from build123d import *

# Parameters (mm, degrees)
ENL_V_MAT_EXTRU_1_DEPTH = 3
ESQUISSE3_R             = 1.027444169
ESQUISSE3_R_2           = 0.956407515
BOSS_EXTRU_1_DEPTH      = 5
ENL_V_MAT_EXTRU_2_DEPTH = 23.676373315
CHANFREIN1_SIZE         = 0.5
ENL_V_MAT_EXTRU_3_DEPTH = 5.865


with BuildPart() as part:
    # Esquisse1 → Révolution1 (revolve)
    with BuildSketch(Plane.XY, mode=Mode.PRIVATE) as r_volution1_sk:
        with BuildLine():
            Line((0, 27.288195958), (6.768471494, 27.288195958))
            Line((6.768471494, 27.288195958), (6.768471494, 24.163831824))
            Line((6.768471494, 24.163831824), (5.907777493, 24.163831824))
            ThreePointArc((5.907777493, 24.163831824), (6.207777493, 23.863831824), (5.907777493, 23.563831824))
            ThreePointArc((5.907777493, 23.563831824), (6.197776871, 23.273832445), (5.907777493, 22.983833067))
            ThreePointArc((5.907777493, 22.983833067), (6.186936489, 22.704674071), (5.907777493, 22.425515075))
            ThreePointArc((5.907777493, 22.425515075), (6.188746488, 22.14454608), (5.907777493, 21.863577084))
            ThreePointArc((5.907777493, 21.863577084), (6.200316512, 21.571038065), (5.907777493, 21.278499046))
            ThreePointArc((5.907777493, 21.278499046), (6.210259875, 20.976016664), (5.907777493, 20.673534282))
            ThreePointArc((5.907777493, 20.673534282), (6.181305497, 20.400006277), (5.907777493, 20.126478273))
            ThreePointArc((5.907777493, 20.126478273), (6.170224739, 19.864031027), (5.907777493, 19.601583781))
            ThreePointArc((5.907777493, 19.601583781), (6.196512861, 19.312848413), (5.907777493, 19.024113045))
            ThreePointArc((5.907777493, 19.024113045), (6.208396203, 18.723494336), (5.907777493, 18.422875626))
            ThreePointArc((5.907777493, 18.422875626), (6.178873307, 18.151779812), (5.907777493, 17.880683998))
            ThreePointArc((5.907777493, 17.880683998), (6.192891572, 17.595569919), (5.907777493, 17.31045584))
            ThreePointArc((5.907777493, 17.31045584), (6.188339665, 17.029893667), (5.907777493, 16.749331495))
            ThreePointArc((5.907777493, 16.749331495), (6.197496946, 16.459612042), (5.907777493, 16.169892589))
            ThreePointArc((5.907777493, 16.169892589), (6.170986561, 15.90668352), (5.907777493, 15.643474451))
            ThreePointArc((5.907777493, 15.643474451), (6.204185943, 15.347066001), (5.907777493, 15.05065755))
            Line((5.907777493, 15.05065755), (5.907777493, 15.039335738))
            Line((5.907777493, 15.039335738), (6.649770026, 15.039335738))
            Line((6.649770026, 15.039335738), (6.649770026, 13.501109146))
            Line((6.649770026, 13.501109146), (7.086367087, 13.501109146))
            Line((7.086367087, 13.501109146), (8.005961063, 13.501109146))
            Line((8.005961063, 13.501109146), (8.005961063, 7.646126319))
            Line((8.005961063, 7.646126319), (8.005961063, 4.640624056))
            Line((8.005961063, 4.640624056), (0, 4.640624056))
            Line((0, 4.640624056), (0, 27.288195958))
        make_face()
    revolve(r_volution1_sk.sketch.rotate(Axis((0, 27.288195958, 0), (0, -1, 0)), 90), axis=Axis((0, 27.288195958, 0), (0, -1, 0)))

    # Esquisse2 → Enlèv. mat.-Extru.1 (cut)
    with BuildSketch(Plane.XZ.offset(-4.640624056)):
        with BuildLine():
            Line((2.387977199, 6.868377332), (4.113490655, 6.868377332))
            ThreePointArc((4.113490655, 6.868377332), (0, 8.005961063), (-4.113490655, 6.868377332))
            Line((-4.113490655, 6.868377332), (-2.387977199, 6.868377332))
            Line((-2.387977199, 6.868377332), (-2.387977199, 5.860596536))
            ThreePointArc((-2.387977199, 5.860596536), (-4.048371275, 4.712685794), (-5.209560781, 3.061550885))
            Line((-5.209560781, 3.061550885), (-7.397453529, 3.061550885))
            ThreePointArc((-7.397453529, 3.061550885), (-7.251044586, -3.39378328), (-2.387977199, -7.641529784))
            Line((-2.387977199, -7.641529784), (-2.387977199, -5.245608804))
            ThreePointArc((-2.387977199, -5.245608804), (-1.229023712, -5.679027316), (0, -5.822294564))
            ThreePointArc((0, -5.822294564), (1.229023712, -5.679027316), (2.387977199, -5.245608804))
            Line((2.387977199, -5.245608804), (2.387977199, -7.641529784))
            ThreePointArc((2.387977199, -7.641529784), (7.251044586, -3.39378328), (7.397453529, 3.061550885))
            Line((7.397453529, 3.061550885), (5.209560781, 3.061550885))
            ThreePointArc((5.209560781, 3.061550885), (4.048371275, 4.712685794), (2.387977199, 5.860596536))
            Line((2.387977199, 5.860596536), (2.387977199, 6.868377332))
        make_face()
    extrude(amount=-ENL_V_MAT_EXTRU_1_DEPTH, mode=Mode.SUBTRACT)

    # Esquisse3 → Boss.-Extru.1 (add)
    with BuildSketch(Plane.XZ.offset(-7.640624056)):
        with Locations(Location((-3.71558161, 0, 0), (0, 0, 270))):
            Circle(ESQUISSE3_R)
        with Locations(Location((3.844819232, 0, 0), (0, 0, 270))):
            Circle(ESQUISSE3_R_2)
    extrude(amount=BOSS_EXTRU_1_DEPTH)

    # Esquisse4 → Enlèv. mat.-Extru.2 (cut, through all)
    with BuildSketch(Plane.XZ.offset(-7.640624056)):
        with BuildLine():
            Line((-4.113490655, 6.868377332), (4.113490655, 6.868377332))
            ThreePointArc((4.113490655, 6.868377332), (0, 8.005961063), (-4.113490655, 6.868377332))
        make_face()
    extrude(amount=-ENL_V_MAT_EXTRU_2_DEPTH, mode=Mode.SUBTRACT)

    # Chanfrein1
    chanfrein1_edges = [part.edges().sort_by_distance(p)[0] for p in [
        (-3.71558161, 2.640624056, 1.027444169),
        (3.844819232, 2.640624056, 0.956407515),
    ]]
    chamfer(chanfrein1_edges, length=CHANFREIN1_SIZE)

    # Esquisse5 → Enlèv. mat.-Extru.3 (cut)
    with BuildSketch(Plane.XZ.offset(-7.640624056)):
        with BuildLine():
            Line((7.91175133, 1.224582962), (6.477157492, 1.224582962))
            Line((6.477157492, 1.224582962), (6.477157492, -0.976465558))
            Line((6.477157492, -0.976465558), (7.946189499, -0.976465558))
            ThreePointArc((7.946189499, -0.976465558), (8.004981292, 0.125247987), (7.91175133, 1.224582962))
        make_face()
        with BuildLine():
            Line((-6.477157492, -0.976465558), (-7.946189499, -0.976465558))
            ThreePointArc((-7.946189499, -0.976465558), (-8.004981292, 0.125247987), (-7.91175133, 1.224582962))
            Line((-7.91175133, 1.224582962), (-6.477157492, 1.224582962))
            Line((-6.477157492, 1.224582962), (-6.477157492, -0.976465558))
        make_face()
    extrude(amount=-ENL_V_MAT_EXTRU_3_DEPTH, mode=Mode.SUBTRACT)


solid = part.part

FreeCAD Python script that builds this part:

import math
import FreeCAD as App
import Part
import Sketcher
from FreeCAD import Vector


def edges_at(feature, points):
    """Names of the edges that pass closest to the given points."""
    edges = feature.Shape.Edges
    near = lambda p: min(range(len(edges)), key=lambda i: edges[i].distToShape(Part.Vertex(*p))[0])
    return sorted({f"Edge{near(p) + 1}" for p in points})

doc = App.newDocument("Part")
params = doc.addObject("Spreadsheet::Sheet", "Params")
for row, (alias, value) in enumerate([
    ("sketch1_radius", "0.3 mm"),
    ("sketch1_radius2", "0.289999 mm"),
    ("revolution_angle", "360 deg"),
    ("pocket1_length", "3 mm"),
    ("pad1_length", "5 mm"),
    ("chamfer_size", "0.5 mm"),
    ("pocket3_length", "5.865 mm"),
], start=1):
    params.set(f"A{row}", alias)
    params.set(f"B{row}", "=" + value)
    params.setAlias(f"B{row}", alias)

body = doc.addObject("PartDesign::Body", "Body")

# Sketch on XY plane
sketch1 = doc.addObject("Sketcher::SketchObject", "Sketch")
body.addObject(sketch1)
sketch1.AttachmentSupport = (doc.XY_Plane, [""])
sketch1.MapMode = "FlatFace"
sketch1.addGeometry(Part.LineSegment(Vector(6.768, 27.288, 0), Vector(0, 27.288, 0)), False)
sketch1.addGeometry(Part.LineSegment(Vector(0, 27.288, 0), Vector(0, 4.641, 0)), False)
sketch1.addGeometry(Part.LineSegment(Vector(0, 4.641, 0), Vector(8.006, 4.641, 0)), False)
sketch1.addGeometry(Part.LineSegment(Vector(8.006, 4.641, 0), Vector(8.006, 13.501, 0)), False)
sketch1.addGeometry(Part.LineSegment(Vector(8.006, 13.501, 0), Vector(6.65, 13.501, 0)), False)
sketch1.addGeometry(Part.LineSegment(Vector(6.65, 13.501, 0), Vector(6.65, 15.039, 0)), False)
sketch1.addGeometry(Part.LineSegment(Vector(6.65, 15.039, 0), Vector(5.908, 15.039, 0)), False)
sketch1.addGeometry(Part.LineSegment(Vector(5.908, 15.039, 0), Vector(5.908, 15.051, 0)), False)
sketch1.addGeometry(Part.ArcOfCircle(Part.Circle(Vector(5.908, 15.347, 0), Vector(0, 0, 1), 0.296), math.radians(-90), math.radians(90)), False)
sketch1.addGeometry(Part.ArcOfCircle(Part.Circle(Vector(5.908, 15.907, 0), Vector(0, 0, 1), 0.263), math.radians(-90), math.radians(90)), False)
sketch1.addGeometry(Part.ArcOfCircle(Part.Circle(Vector(5.908, 16.46, 0), Vector(0, 0, 1), 0.29), math.radians(-90), math.radians(90)), False)
sketch1.addGeometry(Part.ArcOfCircle(Part.Circle(Vector(5.908, 17.03, 0), Vector(0, 0, 1), 0.281), math.radians(-90), math.radians(90)), False)
sketch1.addGeometry(Part.ArcOfCircle(Part.Circle(Vector(5.908, 17.596, 0), Vector(0, 0, 1), 0.285), math.radians(-90), math.radians(90)), False)
sketch1.addGeometry(Part.ArcOfCircle(Part.Circle(Vector(5.908, 18.152, 0), Vector(0, 0, 1), 0.271), math.radians(-90), math.radians(90)), False)
sketch1.addGeometry(Part.ArcOfCircle(Part.Circle(Vector(5.908, 18.723, 0), Vector(0, 0, 1), 0.301), math.radians(-90), math.radians(90)), False)
sketch1.addGeometry(Part.ArcOfCircle(Part.Circle(Vector(5.908, 19.313, 0), Vector(0, 0, 1), 0.289), math.radians(-90), math.radians(90)), False)
sketch1.addGeometry(Part.ArcOfCircle(Part.Circle(Vector(5.908, 19.864, 0), Vector(0, 0, 1), 0.262), math.radians(-90), math.radians(90)), False)
sketch1.addGeometry(Part.ArcOfCircle(Part.Circle(Vector(5.908, 20.4, 0), Vector(0, 0, 1), 0.274), math.radians(-90), math.radians(90)), False)
sketch1.addGeometry(Part.ArcOfCircle(Part.Circle(Vector(5.908, 20.976, 0), Vector(0, 0, 1), 0.302), math.radians(-90), math.radians(90)), False)
sketch1.addGeometry(Part.ArcOfCircle(Part.Circle(Vector(5.908, 21.571, 0), Vector(0, 0, 1), 0.293), math.radians(-90), math.radians(90)), False)
sketch1.addGeometry(Part.ArcOfCircle(Part.Circle(Vector(5.908, 22.145, 0), Vector(0, 0, 1), 0.281), math.radians(-90), math.radians(90)), False)
sketch1.addGeometry(Part.ArcOfCircle(Part.Circle(Vector(5.908, 22.705, 0), Vector(0, 0, 1), 0.279), math.radians(-90), math.radians(90)), False)
sketch1.addGeometry(Part.ArcOfCircle(Part.Circle(Vector(5.908, 23.274, 0), Vector(0, 0, 1), 0.29), math.radians(-90), math.radians(90)), False)
sketch1.addGeometry(Part.ArcOfCircle(Part.Circle(Vector(5.908, 23.864, 0), Vector(0, 0, 1), 0.3), math.radians(-90), math.radians(90)), False)
sketch1.addGeometry(Part.LineSegment(Vector(5.908, 24.164, 0), Vector(6.768, 24.164, 0)), False)
sketch1.addGeometry(Part.LineSegment(Vector(6.768, 24.164, 0), Vector(6.768, 27.288, 0)), False)
sketch1.addConstraint(Sketcher.Constraint("Coincident", 0, 2, 1, 1))
sketch1.addConstraint(Sketcher.Constraint("Coincident", 1, 2, 2, 1))
sketch1.addConstraint(Sketcher.Constraint("Coincident", 2, 2, 3, 1))
sketch1.addConstraint(Sketcher.Constraint("Coincident", 3, 2, 4, 1))
sketch1.addConstraint(Sketcher.Constraint("Coincident", 4, 2, 5, 1))
sketch1.addConstraint(Sketcher.Constraint("Coincident", 5, 2, 6, 1))
sketch1.addConstraint(Sketcher.Constraint("Coincident", 6, 2, 7, 1))
sketch1.addConstraint(Sketcher.Constraint("Coincident", 7, 2, 8, 1))
sketch1.addConstraint(Sketcher.Constraint("Tangent", 8, 2, 9, 1))
sketch1.addConstraint(Sketcher.Constraint("Tangent", 9, 2, 10, 1))
sketch1.addConstraint(Sketcher.Constraint("Tangent", 10, 2, 11, 1))
sketch1.addConstraint(Sketcher.Constraint("Tangent", 11, 2, 12, 1))
sketch1.addConstraint(Sketcher.Constraint("Tangent", 12, 2, 13, 1))
sketch1.addConstraint(Sketcher.Constraint("Tangent", 13, 2, 14, 1))
sketch1.addConstraint(Sketcher.Constraint("Tangent", 14, 2, 15, 1))
sketch1.addConstraint(Sketcher.Constraint("Tangent", 15, 2, 16, 1))
sketch1.addConstraint(Sketcher.Constraint("Tangent", 16, 2, 17, 1))
sketch1.addConstraint(Sketcher.Constraint("Tangent", 17, 2, 18, 1))
sketch1.addConstraint(Sketcher.Constraint("Tangent", 18, 2, 19, 1))
sketch1.addConstraint(Sketcher.Constraint("Tangent", 19, 2, 20, 1))
sketch1.addConstraint(Sketcher.Constraint("Tangent", 20, 2, 21, 1))
sketch1.addConstraint(Sketcher.Constraint("Tangent", 21, 2, 22, 1))
sketch1.addConstraint(Sketcher.Constraint("Tangent", 22, 2, 23, 1))
sketch1.addConstraint(Sketcher.Constraint("Tangent", 23, 2, 24, 1))
sketch1.addConstraint(Sketcher.Constraint("Coincident", 24, 2, 25, 1))
sketch1.addConstraint(Sketcher.Constraint("Coincident", 25, 2, 0, 1))
sketch1.addConstraint(Sketcher.Constraint("Horizontal", 0))
sketch1.addConstraint(Sketcher.Constraint("Vertical", 1))
sketch1.addConstraint(Sketcher.Constraint("Horizontal", 2))
sketch1.addConstraint(Sketcher.Constraint("Vertical", 3))
sketch1.addConstraint(Sketcher.Constraint("Horizontal", 4))
sketch1.addConstraint(Sketcher.Constraint("Vertical", 5))
sketch1.addConstraint(Sketcher.Constraint("Horizontal", 6))
sketch1.addConstraint(Sketcher.Constraint("Vertical", 7))
sketch1.addConstraint(Sketcher.Constraint("Horizontal", 24))
sketch1.addConstraint(Sketcher.Constraint("Vertical", 25))
sketch1.addConstraint(Sketcher.Constraint("PointOnObject", 0, 2, -2))
sketch1.addConstraint(Sketcher.Constraint("Vertical", 8, 3, 9, 3))
sketch1.addConstraint(Sketcher.Constraint("Vertical", 9, 3, 10, 3))
sketch1.addConstraint(Sketcher.Constraint("Vertical", 10, 3, 11, 3))
sketch1.addConstraint(Sketcher.Constraint("Vertical", 11, 3, 12, 3))
sketch1.addConstraint(Sketcher.Constraint("Vertical", 12, 3, 13, 3))
sketch1.addConstraint(Sketcher.Constraint("Vertical", 13, 3, 14, 3))
sketch1.addConstraint(Sketcher.Constraint("Vertical", 14, 3, 15, 3))
sketch1.addConstraint(Sketcher.Constraint("Vertical", 15, 3, 16, 3))
sketch1.addConstraint(Sketcher.Constraint("Vertical", 16, 3, 17, 3))
sketch1.addConstraint(Sketcher.Constraint("Vertical", 17, 3, 18, 3))
sketch1.addConstraint(Sketcher.Constraint("Vertical", 18, 3, 19, 3))
sketch1.addConstraint(Sketcher.Constraint("Vertical", 19, 3, 20, 3))
sketch1.addConstraint(Sketcher.Constraint("Vertical", 20, 3, 21, 3))
sketch1.addConstraint(Sketcher.Constraint("Vertical", 21, 3, 22, 3))
sketch1.addConstraint(Sketcher.Constraint("Vertical", 22, 3, 23, 3))
sketch1.addConstraint(Sketcher.Constraint("Vertical", 23, 3, 6, 2))
sketch1.addConstraint(Sketcher.Constraint("Radius", 23, 0.3))
sketch1.addConstraint(Sketcher.Constraint("Radius", 22, 0.289999))
sketch1.addConstraint(Sketcher.Constraint("Radius", 8, 0.296408))
sketch1.addConstraint(Sketcher.Constraint("Radius", 9, 0.263209))
sketch1.addConstraint(Sketcher.Constraint("Radius", 10, 0.289719))
sketch1.addConstraint(Sketcher.Constraint("Radius", 14, 0.300619))
sketch1.addConstraint(Sketcher.Constraint("Radius", 17, 0.273528))
sketch1.addConstraint(Sketcher.Constraint("Radius", 19, 0.292539))
sketch1.addConstraint(Sketcher.Constraint("Radius", 20, 0.280969))
sketch1.addConstraint(Sketcher.Constraint("Radius", 21, 0.279159))
sketch1.addConstraint(Sketcher.Constraint("DistanceY", 9, 2, 11, 3, 0.860001))
sketch1.addConstraint(Sketcher.Constraint("Radius", 12, 0.285114))
sketch1.addConstraint(Sketcher.Constraint("Radius", 13, 0.271096))
sketch1.addConstraint(Sketcher.Constraint("Radius", 15, 0.288735))
sketch1.addConstraint(Sketcher.Constraint("Radius", 16, 0.262447))
sketch1.addConstraint(Sketcher.Constraint("Radius", 18, 0.302482))
sketch1.addConstraint(Sketcher.Constraint("DistanceX", 0, 2, 0, 1, 6.768471))
sketch1.addConstraint(Sketcher.Constraint("DistanceX", 2, 1, 2, 2, 8.005961))
sketch1.addConstraint(Sketcher.Constraint("DistanceX", 4, 2, 4, 1, 1.356191))
sketch1.addConstraint(Sketcher.Constraint("DistanceY", 1, 2, 1, 1, 22.647572))
sketch1.addConstraint(Sketcher.Constraint("DistanceY", 7, 1, 7, 2, 0.011322))
sketch1.addConstraint(Sketcher.Constraint("DistanceY", -1, 1, 18, 2, 21.278499))
sketch1.addConstraint(Sketcher.Constraint("DistanceX", 6, 2, 6, 1, 0.741993))
sketch1.addConstraint(Sketcher.Constraint("DistanceY", 3, 1, 3, 2, 8.860485))
sketch1.addConstraint(Sketcher.Constraint("DistanceY", 5, 1, 5, 2, 1.538227))
sketch1.setExpression("Constraints[53]", "Params.sketch1_radius")
sketch1.setExpression("Constraints[54]", "Params.sketch1_radius2")
revolution = doc.addObject("PartDesign::Revolution", "Revolution")
body.addObject(revolution)
revolution.Profile = sketch1
revolution.ReferenceAxis = (sketch1, ["V_Axis"])
revolution.setExpression("Angle", "Params.revolution_angle")

# Sketch on XZ plane
sketch2 = doc.addObject("Sketcher::SketchObject", "Sketch001")
body.addObject(sketch2)
sketch2.AttachmentSupport = (doc.XZ_Plane, [""])
sketch2.MapMode = "FlatFace"
sketch2.AttachmentOffset = App.Placement(Vector(0, 0, -4.640624), App.Rotation())
sketch2.addGeometry(Part.LineSegment(Vector(2.387977, 6.868377, 0), Vector(4.113491, 6.868377, 0)), False)
sketch2.addGeometry(Part.ArcOfCircle(Part.Circle(Vector(0, 0, 0), Vector(0, 0, 1), 8.005961), math.radians(59.082489), math.radians(120.917511)), False)
sketch2.addGeometry(Part.LineSegment(Vector(-4.113491, 6.868377, 0), Vector(-2.387977, 6.868377, 0)), False)
sketch2.addGeometry(Part.LineSegment(Vector(-2.387977, 6.868377, 0), Vector(-2.387977, 5.860597, 0)), False)
sketch2.addGeometry(Part.ArcOfCircle(Part.Circle(Vector(0, 0.631717, 0), Vector(0, 0, 1), 5.748358), math.radians(114.545708), math.radians(154.994799)), False)
sketch2.addGeometry(Part.LineSegment(Vector(-5.209561, 3.061551, 0), Vector(-7.397454, 3.061551, 0)), False)
sketch2.addGeometry(Part.ArcOfCircle(Part.Circle(Vector(0, 0, 0), Vector(0, 0, 1), 8.005961), math.radians(157.517024), math.radians(252.645981)), False)
sketch2.addGeometry(Part.LineSegment(Vector(-2.387977, -7.64153, 0), Vector(-2.387977, -5.245609, 0)), False)
sketch2.addGeometry(Part.ArcOfCircle(Part.Circle(Vector(-0.024959, -0.69316, 0), Vector(0, 0, 1), 5.129195), math.radians(-117.432258), math.radians(-89.721192)), False)
sketch2.addGeometry(Part.ArcOfCircle(Part.Circle(Vector(0.024959, -0.69316, 0), Vector(0, 0, 1), 5.129195), math.radians(-90.278808), math.radians(-62.567742)), False)
sketch2.addGeometry(Part.LineSegment(Vector(2.387977, -5.245609, 0), Vector(2.387977, -7.64153, 0)), False)
sketch2.addGeometry(Part.ArcOfCircle(Part.Circle(Vector(0, 0, 0), Vector(0, 0, 1), 8.005961), math.radians(-72.645981), math.radians(22.482976)), False)
sketch2.addGeometry(Part.LineSegment(Vector(7.397454, 3.061551, 0), Vector(5.209561, 3.061551, 0)), False)
sketch2.addGeometry(Part.ArcOfCircle(Part.Circle(Vector(0, 0.631717, 0), Vector(0, 0, 1), 5.748358), math.radians(25.005201), math.radians(65.454292)), False)
sketch2.addGeometry(Part.LineSegment(Vector(2.387977, 5.860597, 0), Vector(2.387977, 6.868377, 0)), False)
sketch2.addConstraint(Sketcher.Constraint("Coincident", 0, 2, 1, 1))
sketch2.addConstraint(Sketcher.Constraint("Coincident", 1, 2, 2, 1))
sketch2.addConstraint(Sketcher.Constraint("Coincident", 2, 2, 3, 1))
sketch2.addConstraint(Sketcher.Constraint("Coincident", 3, 2, 4, 1))
sketch2.addConstraint(Sketcher.Constraint("Coincident", 4, 2, 5, 1))
sketch2.addConstraint(Sketcher.Constraint("Coincident", 5, 2, 6, 1))
sketch2.addConstraint(Sketcher.Constraint("Coincident", 6, 2, 7, 1))
sketch2.addConstraint(Sketcher.Constraint("Coincident", 7, 2, 8, 1))
sketch2.addConstraint(Sketcher.Constraint("Coincident", 8, 2, 9, 1))
sketch2.addConstraint(Sketcher.Constraint("Coincident", 9, 2, 10, 1))
sketch2.addConstraint(Sketcher.Constraint("Coincident", 10, 2, 11, 1))
sketch2.addConstraint(Sketcher.Constraint("Coincident", 11, 2, 12, 1))
sketch2.addConstraint(Sketcher.Constraint("Coincident", 12, 2, 13, 1))
sketch2.addConstraint(Sketcher.Constraint("Coincident", 13, 2, 14, 1))
sketch2.addConstraint(Sketcher.Constraint("Coincident", 14, 2, 0, 1))
sketch2.addConstraint(Sketcher.Constraint("Horizontal", 0))
sketch2.addConstraint(Sketcher.Constraint("Horizontal", 2))
sketch2.addConstraint(Sketcher.Constraint("Vertical", 3))
sketch2.addConstraint(Sketcher.Constraint("Horizontal", 5))
sketch2.addConstraint(Sketcher.Constraint("Vertical", 7))
sketch2.addConstraint(Sketcher.Constraint("Vertical", 10))
sketch2.addConstraint(Sketcher.Constraint("Horizontal", 12))
sketch2.addConstraint(Sketcher.Constraint("Vertical", 14))
sketch2.addConstraint(Sketcher.Constraint("Coincident", 1, 3, -1, 1))
sketch2.addConstraint(Sketcher.Constraint("Coincident", 6, 3, -1, 1))
sketch2.addConstraint(Sketcher.Constraint("Coincident", 11, 3, -1, 1))
sketch2.addConstraint(Sketcher.Constraint("Coincident", 13, 3, 4, 3))
sketch2.addConstraint(Sketcher.Constraint("Equal", 1, 6))
sketch2.addConstraint(Sketcher.Constraint("Equal", 8, 9))
sketch2.addConstraint(Sketcher.Constraint("Equal", 6, 11))
sketch2.addConstraint(Sketcher.Constraint("Equal", 4, 13))
sketch2.addConstraint(Sketcher.Constraint("Symmetric", 8, 3, 9, 3, -2))
sketch2.addConstraint(Sketcher.Constraint("Symmetric", 4, 2, 12, 2, -2))
sketch2.addConstraint(Sketcher.Constraint("Symmetric", 2, 2, 14, 2, -2))
sketch2.addConstraint(Sketcher.Constraint("Horizontal", 7, 2, 9, 2))
sketch2.addConstraint(Sketcher.Constraint("Vertical", 3, 2, 6, 2))
sketch2.addConstraint(Sketcher.Constraint("Radius", 1, 8.005961))
sketch2.addConstraint(Sketcher.Constraint("Radius", 4, 5.748358))
sketch2.addConstraint(Sketcher.Constraint("Radius", 8, 5.129195))
sketch2.addConstraint(Sketcher.Constraint("DistanceY", 3, 2, 3, 1, 1.007781))
sketch2.addConstraint(Sketcher.Constraint("DistanceY", 7, 1, 7, 2, 2.395921))
sketch2.addConstraint(Sketcher.Constraint("DistanceX", 0, 1, 0, 2, 1.725513))
sketch2.addConstraint(Sketcher.Constraint("DistanceX", 5, 2, 5, 1, 2.187893))
sketch2.addConstraint(Sketcher.Constraint("DistanceX", 8, 3, -1, 1, 0.024959))
sketch2.addConstraint(Sketcher.Constraint("DistanceY", 8, 3, -1, 1, 0.69316))
pocket1 = doc.addObject("PartDesign::Pocket", "Pocket")
body.addObject(pocket1)
pocket1.Profile = sketch2
pocket1.setExpression("Length", "Params.pocket1_length")

# Sketch on XZ plane
sketch3 = doc.addObject("Sketcher::SketchObject", "Sketch002")
body.addObject(sketch3)
sketch3.AttachmentSupport = (doc.XZ_Plane, [""])
sketch3.MapMode = "FlatFace"
sketch3.AttachmentOffset = App.Placement(Vector(0, 0, -7.640624), App.Rotation())
sketch3.addGeometry(Part.Circle(Vector(-3.7, 0, 0), Vector(0, 0, 1), 1), False)
sketch3.addGeometry(Part.Circle(Vector(3.8, 0, 0), Vector(0, 0, 1), 1), False)
sketch3.addConstraint(Sketcher.Constraint("PointOnObject", 0, 3, -1))
sketch3.addConstraint(Sketcher.Constraint("PointOnObject", 1, 3, -1))
sketch3.addConstraint(Sketcher.Constraint("Diameter", 0, 2.054888))
sketch3.addConstraint(Sketcher.Constraint("Diameter", 1, 1.912815))
sketch3.addConstraint(Sketcher.Constraint("DistanceX", 0, 3, 1, 3, 7.560401))
sketch3.addConstraint(Sketcher.Constraint("DistanceX", 0, 3, -1, 1, 3.715582))
pad1 = doc.addObject("PartDesign::Pad", "Pad")
body.addObject(pad1)
pad1.Profile = sketch3
pad1.setExpression("Length", "Params.pad1_length")

# Sketch on XZ plane
sketch4 = doc.addObject("Sketcher::SketchObject", "Sketch003")
body.addObject(sketch4)
sketch4.AttachmentSupport = (doc.XZ_Plane, [""])
sketch4.MapMode = "FlatFace"
sketch4.AttachmentOffset = App.Placement(Vector(0, 0, -7.640624), App.Rotation())
sketch4.addGeometry(Part.LineSegment(Vector(-4, 7, 0), Vector(4, 7, 0)), False)
sketch4.addGeometry(Part.ArcOfCircle(Part.Circle(Vector(0, 0, 0), Vector(0, 0, 1), 8), math.radians(59), math.radians(121)), False)
sketch4.addConstraint(Sketcher.Constraint("Coincident", 0, 1, 1, 2))
sketch4.addConstraint(Sketcher.Constraint("Coincident", 1, 1, 0, 2))
sketch4.addConstraint(Sketcher.Constraint("Horizontal", 0))
sketch4.addConstraint(Sketcher.Constraint("Coincident", 1, 3, -1, 1))
sketch4.addConstraint(Sketcher.Constraint("Radius", 1, 8.005961))
sketch4.addConstraint(Sketcher.Constraint("DistanceX", 0, 1, 0, 2, 8.226981))
pocket2 = doc.addObject("PartDesign::Pocket", "Pocket001")
body.addObject(pocket2)
pocket2.Profile = sketch4
pocket2.Type = "ThroughAll"
doc.recompute()

chamfer = doc.addObject("PartDesign::Chamfer", "Chamfer")
body.addObject(chamfer)
chamfer.Base = (pocket2, edges_at(pocket2, [(-3.716, 2.641, 1.027), (3.845, 2.641, 0.956)]))
chamfer.setExpression("Size", "Params.chamfer_size")

# Sketch on XZ plane
sketch5 = doc.addObject("Sketcher::SketchObject", "Sketch004")
body.addObject(sketch5)
sketch5.AttachmentSupport = (doc.XZ_Plane, [""])
sketch5.MapMode = "FlatFace"
sketch5.AttachmentOffset = App.Placement(Vector(0, 0, -7.640624), App.Rotation())
sketch5.addGeometry(Part.LineSegment(Vector(7.9, 1.2, 0), Vector(6.5, 1.2, 0)), False)
sketch5.addGeometry(Part.LineSegment(Vector(6.5, 1.2, 0), Vector(6.5, -1, 0)), False)
sketch5.addGeometry(Part.LineSegment(Vector(6.5, -1, 0), Vector(7.9, -1, 0)), False)
sketch5.addGeometry(Part.ArcOfCircle(Part.Circle(Vector(0, 0, 0), Vector(0, 0, 1), 8), math.radians(-7.01), math.radians(8.8)), False)
sketch5.addGeometry(Part.LineSegment(Vector(-7.9, -1, 0), Vector(-6.5, -1, 0)), False)
sketch5.addGeometry(Part.LineSegment(Vector(-6.5, -1, 0), Vector(-6.5, 1.2, 0)), False)
sketch5.addGeometry(Part.LineSegment(Vector(-6.5, 1.2, 0), Vector(-7.9, 1.2, 0)), False)
sketch5.addGeometry(Part.ArcOfCircle(Part.Circle(Vector(0, 0, 0), Vector(0, 0, 1), 8), math.radians(171.2), math.radians(187.01)), False)
sketch5.addConstraint(Sketcher.Constraint("Coincident", 0, 2, 1, 1))
sketch5.addConstraint(Sketcher.Constraint("Coincident", 1, 2, 2, 1))
sketch5.addConstraint(Sketcher.Constraint("Coincident", 2, 2, 3, 1))
sketch5.addConstraint(Sketcher.Constraint("Coincident", 3, 2, 0, 1))
sketch5.addConstraint(Sketcher.Constraint("Coincident", 4, 2, 5, 1))
sketch5.addConstraint(Sketcher.Constraint("Coincident", 5, 2, 6, 1))
sketch5.addConstraint(Sketcher.Constraint("Coincident", 6, 2, 7, 1))
sketch5.addConstraint(Sketcher.Constraint("Coincident", 7, 2, 4, 1))
sketch5.addConstraint(Sketcher.Constraint("Horizontal", 0))
sketch5.addConstraint(Sketcher.Constraint("Vertical", 1))
sketch5.addConstraint(Sketcher.Constraint("Horizontal", 2))
sketch5.addConstraint(Sketcher.Constraint("Horizontal", 4))
sketch5.addConstraint(Sketcher.Constraint("Vertical", 5))
sketch5.addConstraint(Sketcher.Constraint("Horizontal", 6))
sketch5.addConstraint(Sketcher.Constraint("Coincident", 3, 3, -1, 1))
sketch5.addConstraint(Sketcher.Constraint("Coincident", 7, 3, -1, 1))
sketch5.addConstraint(Sketcher.Constraint("Equal", 3, 7))
sketch5.addConstraint(Sketcher.Constraint("Symmetric", 1, 2, 4, 2, -2))
sketch5.addConstraint(Sketcher.Constraint("Horizontal", 3, 2, 5, 2))
sketch5.addConstraint(Sketcher.Constraint("Radius", 3, 8.005961))
sketch5.addConstraint(Sketcher.Constraint("DistanceY", 1, 2, 1, 1, 2.201049))
sketch5.addConstraint(Sketcher.Constraint("DistanceX", 0, 2, 0, 1, 1.434594))
sketch5.addConstraint(Sketcher.Constraint("DistanceX", 2, 1, 2, 2, 1.469032))
pocket3 = doc.addObject("PartDesign::Pocket", "Pocket002")
body.addObject(pocket3)
pocket3.Profile = sketch5
pocket3.setExpression("Length", "Params.pocket3_length")

doc.recompute()
